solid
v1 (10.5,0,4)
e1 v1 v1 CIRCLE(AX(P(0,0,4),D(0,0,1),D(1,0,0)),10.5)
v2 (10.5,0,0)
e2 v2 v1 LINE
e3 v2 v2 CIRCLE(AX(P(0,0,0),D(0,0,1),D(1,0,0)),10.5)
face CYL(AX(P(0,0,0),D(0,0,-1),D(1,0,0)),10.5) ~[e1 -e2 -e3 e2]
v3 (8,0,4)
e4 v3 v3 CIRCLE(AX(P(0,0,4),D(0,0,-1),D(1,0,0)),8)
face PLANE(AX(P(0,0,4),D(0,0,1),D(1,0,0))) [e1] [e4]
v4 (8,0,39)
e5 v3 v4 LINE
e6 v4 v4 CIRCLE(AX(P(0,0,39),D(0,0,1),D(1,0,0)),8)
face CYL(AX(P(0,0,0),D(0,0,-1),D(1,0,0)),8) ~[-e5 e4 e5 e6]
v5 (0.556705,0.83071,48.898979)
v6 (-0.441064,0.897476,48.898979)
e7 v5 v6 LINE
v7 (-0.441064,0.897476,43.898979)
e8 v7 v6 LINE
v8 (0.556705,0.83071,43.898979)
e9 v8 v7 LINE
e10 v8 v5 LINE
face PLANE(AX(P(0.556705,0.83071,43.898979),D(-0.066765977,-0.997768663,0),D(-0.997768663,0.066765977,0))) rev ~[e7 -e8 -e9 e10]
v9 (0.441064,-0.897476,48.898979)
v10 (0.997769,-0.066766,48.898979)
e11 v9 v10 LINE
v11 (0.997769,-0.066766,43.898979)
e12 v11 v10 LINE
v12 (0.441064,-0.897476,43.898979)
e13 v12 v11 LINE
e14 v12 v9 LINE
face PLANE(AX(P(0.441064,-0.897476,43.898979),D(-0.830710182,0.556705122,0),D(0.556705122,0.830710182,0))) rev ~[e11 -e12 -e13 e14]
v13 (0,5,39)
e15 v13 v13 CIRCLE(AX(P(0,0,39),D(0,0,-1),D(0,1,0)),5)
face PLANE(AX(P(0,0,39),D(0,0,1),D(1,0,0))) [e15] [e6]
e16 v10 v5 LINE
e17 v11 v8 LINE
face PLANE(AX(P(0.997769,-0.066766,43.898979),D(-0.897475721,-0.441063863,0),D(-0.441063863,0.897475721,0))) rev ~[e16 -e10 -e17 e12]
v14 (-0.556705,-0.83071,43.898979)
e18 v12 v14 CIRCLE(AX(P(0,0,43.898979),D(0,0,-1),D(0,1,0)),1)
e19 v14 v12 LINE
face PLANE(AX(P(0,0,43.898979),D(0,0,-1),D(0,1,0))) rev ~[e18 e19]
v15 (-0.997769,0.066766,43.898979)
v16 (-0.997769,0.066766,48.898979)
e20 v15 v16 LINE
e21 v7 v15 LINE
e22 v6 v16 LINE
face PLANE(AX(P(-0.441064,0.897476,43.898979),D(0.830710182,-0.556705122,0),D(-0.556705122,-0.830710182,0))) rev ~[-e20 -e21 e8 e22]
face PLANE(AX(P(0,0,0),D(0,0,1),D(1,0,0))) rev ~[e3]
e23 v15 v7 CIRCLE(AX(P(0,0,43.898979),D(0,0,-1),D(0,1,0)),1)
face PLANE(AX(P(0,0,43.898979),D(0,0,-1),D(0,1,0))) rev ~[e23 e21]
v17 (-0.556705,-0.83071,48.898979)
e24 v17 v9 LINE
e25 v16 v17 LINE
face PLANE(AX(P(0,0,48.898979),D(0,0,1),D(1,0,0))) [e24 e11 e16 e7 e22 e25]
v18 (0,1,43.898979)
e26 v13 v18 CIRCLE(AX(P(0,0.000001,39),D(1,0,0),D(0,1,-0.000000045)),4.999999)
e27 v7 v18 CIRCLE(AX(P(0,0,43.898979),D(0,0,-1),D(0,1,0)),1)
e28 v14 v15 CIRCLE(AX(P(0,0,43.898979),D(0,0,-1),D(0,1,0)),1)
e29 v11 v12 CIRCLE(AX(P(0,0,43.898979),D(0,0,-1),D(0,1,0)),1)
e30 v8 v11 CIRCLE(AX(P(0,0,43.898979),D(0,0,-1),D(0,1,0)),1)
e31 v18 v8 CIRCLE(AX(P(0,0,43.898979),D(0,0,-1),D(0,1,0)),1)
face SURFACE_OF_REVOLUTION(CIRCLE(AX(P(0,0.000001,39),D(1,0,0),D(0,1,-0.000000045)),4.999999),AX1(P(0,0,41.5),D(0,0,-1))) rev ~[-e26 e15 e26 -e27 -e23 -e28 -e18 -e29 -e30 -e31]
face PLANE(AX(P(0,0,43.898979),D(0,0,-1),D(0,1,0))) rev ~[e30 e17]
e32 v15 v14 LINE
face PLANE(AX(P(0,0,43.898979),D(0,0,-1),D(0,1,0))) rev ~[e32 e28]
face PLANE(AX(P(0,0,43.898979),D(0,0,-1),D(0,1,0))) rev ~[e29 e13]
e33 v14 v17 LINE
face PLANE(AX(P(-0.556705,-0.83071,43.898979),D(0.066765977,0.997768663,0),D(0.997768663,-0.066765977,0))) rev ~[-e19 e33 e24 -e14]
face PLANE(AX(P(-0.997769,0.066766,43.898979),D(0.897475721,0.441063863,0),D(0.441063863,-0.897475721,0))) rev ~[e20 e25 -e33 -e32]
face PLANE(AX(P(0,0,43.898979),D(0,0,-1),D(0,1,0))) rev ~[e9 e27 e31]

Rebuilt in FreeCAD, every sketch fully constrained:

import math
import FreeCAD as App
import Part
import Sketcher
from FreeCAD import Vector


def add_polygon(sketch, points):
    """Adds a closed chain of lines whose ends are joined by coincident constraints."""
    first, n = sketch.GeometryCount, len(points)
    for a, b in zip(points, points[1:] + points[:1]):
        sketch.addGeometry(Part.LineSegment(App.Vector(*a, 0), App.Vector(*b, 0)), False)
    for i in range(n):
        sketch.addConstraint(Sketcher.Constraint("Coincident", first + i, 2, first + (i + 1) % n, 1))

doc = App.newDocument("Part")
params = doc.addObject("Spreadsheet::Sheet", "Params")
for row, (alias, value) in enumerate([
    ("sketch1_diameter", "21 mm"),
    ("pad1_length", "4 mm"),
    ("sketch2_diameter", "16 mm"),
    ("pad2_length", "39 mm"),
    ("sketch3_radius", "4.999999 mm"),
    ("sketch3_width", "1 mm"),
    ("revolution_angle", "360 deg"),
    ("sketch4_length", "1 mm"),
    ("sketch4_length2", "1 mm"),
    ("sketch4_length3", "1 mm"),
    ("sketch4_length4", "1 mm"),
    ("sketch4_length5", "1 mm"),
    ("pad3_length", "5 mm"),
], start=1):
    params.set(f"A{row}", alias)
    params.set(f"B{row}", "=" + value)
    params.setAlias(f"B{row}", alias)

body = doc.addObject("PartDesign::Body", "Body")

sketch1 = doc.addObject("Sketcher::SketchObject", "Sketch")
body.addObject(sketch1)
sketch1.AttachmentSupport = (doc.XY_Plane, [""])
sketch1.MapMode = "FlatFace"
sketch1.addGeometry(Part.Circle(Vector(0, 0, 0), Vector(0, 0, 1), 10), False)
sketch1.addConstraint([
    Sketcher.Constraint("Coincident", 0, 3, -1, 1),
    Sketcher.Constraint("Diameter", 0, 21.0),
])
sketch1.setExpression("Constraints[1]", "Params.sketch1_diameter")
pad1 = doc.addObject("PartDesign::Pad", "Pad")
body.addObject(pad1)
pad1.Profile = sketch1
pad1.setExpression("Length", "Params.pad1_length")

sketch2 = doc.addObject("Sketcher::SketchObject", "Sketch001")
body.addObject(sketch2)
sketch2.AttachmentSupport = (doc.XY_Plane, [""])
sketch2.MapMode = "FlatFace"
sketch2.addGeometry(Part.Circle(Vector(0, 0, 0), Vector(0, 0, 1), 8), False)
sketch2.addConstraint([
    Sketcher.Constraint("Coincident", 0, 3, -1, 1),
    Sketcher.Constraint("Diameter", 0, 16.0),
])
sketch2.setExpression("Constraints[1]", "Params.sketch2_diameter")
pad2 = doc.addObject("PartDesign::Pad", "Pad001")
body.addObject(pad2)
pad2.Profile = sketch2
pad2.setExpression("Length", "Params.pad2_length")

sketch3 = doc.addObject("Sketcher::SketchObject", "Sketch002")
body.addObject(sketch3)
sketch3.AttachmentSupport = (doc.YZ_Plane, [""])
sketch3.MapMode = "FlatFace"
sketch3.addGeometry([
    Part.LineSegment(Vector(1, 43.9, 0), Vector(0, 43.9, 0)),
    Part.LineSegment(Vector(0, 43.9, 0), Vector(0, 39, 0)),
    Part.LineSegment(Vector(0, 39, 0), Vector(5, 39, 0)),
    Part.ArcOfCircle(Part.Circle(Vector(0, 39, 0), Vector(0, 0, 1), 5), math.radians(0), math.radians(78)),
], False)
sketch3.addConstraint([
    Sketcher.Constraint("Coincident", 0, 2, 1, 1),
    Sketcher.Constraint("Coincident", 1, 2, 2, 1),
    Sketcher.Constraint("Coincident", 2, 2, 3, 1),
    Sketcher.Constraint("Coincident", 3, 2, 0, 1),
    Sketcher.Constraint("Horizontal", 0),
    Sketcher.Constraint("Vertical", 1),
    Sketcher.Constraint("Horizontal", 2),
    Sketcher.Constraint("Coincident", 1, 2, 3, 3),
    Sketcher.Constraint("PointOnObject", 3, 3, -2),
    Sketcher.Constraint("Radius", 3, 4.999999),
    Sketcher.Constraint("DistanceX", 0, 2, 0, 1, 1.0),
    Sketcher.Constraint("DistanceY", -1, 1, 3, 3, 39.0),
])
sketch3.setExpression("Constraints[9]", "Params.sketch3_radius")
sketch3.setExpression("Constraints[10]", "Params.sketch3_width")
revolution = doc.addObject("PartDesign::Revolution", "Revolution")
body.addObject(revolution)
revolution.Profile = sketch3
revolution.ReferenceAxis = (sketch3, ["V_Axis"])
revolution.setExpression("Angle", "Params.revolution_angle")

sketch4 = doc.addObject("Sketcher::SketchObject", "Sketch003")
body.addObject(sketch4)
sketch4.AttachmentSupport = (doc.XY_Plane, [""])
sketch4.MapMode = "FlatFace"
sketch4.AttachmentOffset = App.Placement(Vector(0, 0, 43.898979), App.Rotation())
add_polygon(sketch4, [(0.441064, -0.897476), (0.997769, -0.066766), (0.556705, 0.83071), (-0.441064, 0.897476), (-0.997769, 0.066766), (-0.556705, -0.83071)])
sketch4.addConstraint([
    Sketcher.Constraint("Distance", 0, 1.0),
    Sketcher.Constraint("Distance", 1, 1.0),
    Sketcher.Constraint("Distance", 2, 1.0),
    Sketcher.Constraint("Distance", 3, 1.0),
    Sketcher.Constraint("Distance", 4, 1.0),
    Sketcher.Constraint("Distance", 5, 1.0),
    Sketcher.Constraint("DistanceX", -1, 1, 0, 2, 0.997769),
    Sketcher.Constraint("DistanceY", -1, 1, 1, 2, 0.83071),
    Sketcher.Constraint("DistanceX", 3, 2, -1, 1, 0.997769),
    Sketcher.Constraint("DistanceY", 4, 2, -1, 1, 0.83071),
    Sketcher.Constraint("DistanceX", 2, 2, 1, 2, 0.997769),
    Sketcher.Constraint("DistanceY", 3, 2, 2, 2, 0.83071),
])
sketch4.setExpression("Constraints[6]", "Params.sketch4_length")
sketch4.setExpression("Constraints[7]", "Params.sketch4_length2")
sketch4.setExpression("Constraints[8]", "Params.sketch4_length3")
sketch4.setExpression("Constraints[9]", "Params.sketch4_length4")
sketch4.setExpression("Constraints[10]", "Params.sketch4_length5")
pad3 = doc.addObject("PartDesign::Pad", "Pad002")
body.addObject(pad3)
pad3.Profile = sketch4
pad3.setExpression("Length", "Params.pad3_length")

doc.recompute()
